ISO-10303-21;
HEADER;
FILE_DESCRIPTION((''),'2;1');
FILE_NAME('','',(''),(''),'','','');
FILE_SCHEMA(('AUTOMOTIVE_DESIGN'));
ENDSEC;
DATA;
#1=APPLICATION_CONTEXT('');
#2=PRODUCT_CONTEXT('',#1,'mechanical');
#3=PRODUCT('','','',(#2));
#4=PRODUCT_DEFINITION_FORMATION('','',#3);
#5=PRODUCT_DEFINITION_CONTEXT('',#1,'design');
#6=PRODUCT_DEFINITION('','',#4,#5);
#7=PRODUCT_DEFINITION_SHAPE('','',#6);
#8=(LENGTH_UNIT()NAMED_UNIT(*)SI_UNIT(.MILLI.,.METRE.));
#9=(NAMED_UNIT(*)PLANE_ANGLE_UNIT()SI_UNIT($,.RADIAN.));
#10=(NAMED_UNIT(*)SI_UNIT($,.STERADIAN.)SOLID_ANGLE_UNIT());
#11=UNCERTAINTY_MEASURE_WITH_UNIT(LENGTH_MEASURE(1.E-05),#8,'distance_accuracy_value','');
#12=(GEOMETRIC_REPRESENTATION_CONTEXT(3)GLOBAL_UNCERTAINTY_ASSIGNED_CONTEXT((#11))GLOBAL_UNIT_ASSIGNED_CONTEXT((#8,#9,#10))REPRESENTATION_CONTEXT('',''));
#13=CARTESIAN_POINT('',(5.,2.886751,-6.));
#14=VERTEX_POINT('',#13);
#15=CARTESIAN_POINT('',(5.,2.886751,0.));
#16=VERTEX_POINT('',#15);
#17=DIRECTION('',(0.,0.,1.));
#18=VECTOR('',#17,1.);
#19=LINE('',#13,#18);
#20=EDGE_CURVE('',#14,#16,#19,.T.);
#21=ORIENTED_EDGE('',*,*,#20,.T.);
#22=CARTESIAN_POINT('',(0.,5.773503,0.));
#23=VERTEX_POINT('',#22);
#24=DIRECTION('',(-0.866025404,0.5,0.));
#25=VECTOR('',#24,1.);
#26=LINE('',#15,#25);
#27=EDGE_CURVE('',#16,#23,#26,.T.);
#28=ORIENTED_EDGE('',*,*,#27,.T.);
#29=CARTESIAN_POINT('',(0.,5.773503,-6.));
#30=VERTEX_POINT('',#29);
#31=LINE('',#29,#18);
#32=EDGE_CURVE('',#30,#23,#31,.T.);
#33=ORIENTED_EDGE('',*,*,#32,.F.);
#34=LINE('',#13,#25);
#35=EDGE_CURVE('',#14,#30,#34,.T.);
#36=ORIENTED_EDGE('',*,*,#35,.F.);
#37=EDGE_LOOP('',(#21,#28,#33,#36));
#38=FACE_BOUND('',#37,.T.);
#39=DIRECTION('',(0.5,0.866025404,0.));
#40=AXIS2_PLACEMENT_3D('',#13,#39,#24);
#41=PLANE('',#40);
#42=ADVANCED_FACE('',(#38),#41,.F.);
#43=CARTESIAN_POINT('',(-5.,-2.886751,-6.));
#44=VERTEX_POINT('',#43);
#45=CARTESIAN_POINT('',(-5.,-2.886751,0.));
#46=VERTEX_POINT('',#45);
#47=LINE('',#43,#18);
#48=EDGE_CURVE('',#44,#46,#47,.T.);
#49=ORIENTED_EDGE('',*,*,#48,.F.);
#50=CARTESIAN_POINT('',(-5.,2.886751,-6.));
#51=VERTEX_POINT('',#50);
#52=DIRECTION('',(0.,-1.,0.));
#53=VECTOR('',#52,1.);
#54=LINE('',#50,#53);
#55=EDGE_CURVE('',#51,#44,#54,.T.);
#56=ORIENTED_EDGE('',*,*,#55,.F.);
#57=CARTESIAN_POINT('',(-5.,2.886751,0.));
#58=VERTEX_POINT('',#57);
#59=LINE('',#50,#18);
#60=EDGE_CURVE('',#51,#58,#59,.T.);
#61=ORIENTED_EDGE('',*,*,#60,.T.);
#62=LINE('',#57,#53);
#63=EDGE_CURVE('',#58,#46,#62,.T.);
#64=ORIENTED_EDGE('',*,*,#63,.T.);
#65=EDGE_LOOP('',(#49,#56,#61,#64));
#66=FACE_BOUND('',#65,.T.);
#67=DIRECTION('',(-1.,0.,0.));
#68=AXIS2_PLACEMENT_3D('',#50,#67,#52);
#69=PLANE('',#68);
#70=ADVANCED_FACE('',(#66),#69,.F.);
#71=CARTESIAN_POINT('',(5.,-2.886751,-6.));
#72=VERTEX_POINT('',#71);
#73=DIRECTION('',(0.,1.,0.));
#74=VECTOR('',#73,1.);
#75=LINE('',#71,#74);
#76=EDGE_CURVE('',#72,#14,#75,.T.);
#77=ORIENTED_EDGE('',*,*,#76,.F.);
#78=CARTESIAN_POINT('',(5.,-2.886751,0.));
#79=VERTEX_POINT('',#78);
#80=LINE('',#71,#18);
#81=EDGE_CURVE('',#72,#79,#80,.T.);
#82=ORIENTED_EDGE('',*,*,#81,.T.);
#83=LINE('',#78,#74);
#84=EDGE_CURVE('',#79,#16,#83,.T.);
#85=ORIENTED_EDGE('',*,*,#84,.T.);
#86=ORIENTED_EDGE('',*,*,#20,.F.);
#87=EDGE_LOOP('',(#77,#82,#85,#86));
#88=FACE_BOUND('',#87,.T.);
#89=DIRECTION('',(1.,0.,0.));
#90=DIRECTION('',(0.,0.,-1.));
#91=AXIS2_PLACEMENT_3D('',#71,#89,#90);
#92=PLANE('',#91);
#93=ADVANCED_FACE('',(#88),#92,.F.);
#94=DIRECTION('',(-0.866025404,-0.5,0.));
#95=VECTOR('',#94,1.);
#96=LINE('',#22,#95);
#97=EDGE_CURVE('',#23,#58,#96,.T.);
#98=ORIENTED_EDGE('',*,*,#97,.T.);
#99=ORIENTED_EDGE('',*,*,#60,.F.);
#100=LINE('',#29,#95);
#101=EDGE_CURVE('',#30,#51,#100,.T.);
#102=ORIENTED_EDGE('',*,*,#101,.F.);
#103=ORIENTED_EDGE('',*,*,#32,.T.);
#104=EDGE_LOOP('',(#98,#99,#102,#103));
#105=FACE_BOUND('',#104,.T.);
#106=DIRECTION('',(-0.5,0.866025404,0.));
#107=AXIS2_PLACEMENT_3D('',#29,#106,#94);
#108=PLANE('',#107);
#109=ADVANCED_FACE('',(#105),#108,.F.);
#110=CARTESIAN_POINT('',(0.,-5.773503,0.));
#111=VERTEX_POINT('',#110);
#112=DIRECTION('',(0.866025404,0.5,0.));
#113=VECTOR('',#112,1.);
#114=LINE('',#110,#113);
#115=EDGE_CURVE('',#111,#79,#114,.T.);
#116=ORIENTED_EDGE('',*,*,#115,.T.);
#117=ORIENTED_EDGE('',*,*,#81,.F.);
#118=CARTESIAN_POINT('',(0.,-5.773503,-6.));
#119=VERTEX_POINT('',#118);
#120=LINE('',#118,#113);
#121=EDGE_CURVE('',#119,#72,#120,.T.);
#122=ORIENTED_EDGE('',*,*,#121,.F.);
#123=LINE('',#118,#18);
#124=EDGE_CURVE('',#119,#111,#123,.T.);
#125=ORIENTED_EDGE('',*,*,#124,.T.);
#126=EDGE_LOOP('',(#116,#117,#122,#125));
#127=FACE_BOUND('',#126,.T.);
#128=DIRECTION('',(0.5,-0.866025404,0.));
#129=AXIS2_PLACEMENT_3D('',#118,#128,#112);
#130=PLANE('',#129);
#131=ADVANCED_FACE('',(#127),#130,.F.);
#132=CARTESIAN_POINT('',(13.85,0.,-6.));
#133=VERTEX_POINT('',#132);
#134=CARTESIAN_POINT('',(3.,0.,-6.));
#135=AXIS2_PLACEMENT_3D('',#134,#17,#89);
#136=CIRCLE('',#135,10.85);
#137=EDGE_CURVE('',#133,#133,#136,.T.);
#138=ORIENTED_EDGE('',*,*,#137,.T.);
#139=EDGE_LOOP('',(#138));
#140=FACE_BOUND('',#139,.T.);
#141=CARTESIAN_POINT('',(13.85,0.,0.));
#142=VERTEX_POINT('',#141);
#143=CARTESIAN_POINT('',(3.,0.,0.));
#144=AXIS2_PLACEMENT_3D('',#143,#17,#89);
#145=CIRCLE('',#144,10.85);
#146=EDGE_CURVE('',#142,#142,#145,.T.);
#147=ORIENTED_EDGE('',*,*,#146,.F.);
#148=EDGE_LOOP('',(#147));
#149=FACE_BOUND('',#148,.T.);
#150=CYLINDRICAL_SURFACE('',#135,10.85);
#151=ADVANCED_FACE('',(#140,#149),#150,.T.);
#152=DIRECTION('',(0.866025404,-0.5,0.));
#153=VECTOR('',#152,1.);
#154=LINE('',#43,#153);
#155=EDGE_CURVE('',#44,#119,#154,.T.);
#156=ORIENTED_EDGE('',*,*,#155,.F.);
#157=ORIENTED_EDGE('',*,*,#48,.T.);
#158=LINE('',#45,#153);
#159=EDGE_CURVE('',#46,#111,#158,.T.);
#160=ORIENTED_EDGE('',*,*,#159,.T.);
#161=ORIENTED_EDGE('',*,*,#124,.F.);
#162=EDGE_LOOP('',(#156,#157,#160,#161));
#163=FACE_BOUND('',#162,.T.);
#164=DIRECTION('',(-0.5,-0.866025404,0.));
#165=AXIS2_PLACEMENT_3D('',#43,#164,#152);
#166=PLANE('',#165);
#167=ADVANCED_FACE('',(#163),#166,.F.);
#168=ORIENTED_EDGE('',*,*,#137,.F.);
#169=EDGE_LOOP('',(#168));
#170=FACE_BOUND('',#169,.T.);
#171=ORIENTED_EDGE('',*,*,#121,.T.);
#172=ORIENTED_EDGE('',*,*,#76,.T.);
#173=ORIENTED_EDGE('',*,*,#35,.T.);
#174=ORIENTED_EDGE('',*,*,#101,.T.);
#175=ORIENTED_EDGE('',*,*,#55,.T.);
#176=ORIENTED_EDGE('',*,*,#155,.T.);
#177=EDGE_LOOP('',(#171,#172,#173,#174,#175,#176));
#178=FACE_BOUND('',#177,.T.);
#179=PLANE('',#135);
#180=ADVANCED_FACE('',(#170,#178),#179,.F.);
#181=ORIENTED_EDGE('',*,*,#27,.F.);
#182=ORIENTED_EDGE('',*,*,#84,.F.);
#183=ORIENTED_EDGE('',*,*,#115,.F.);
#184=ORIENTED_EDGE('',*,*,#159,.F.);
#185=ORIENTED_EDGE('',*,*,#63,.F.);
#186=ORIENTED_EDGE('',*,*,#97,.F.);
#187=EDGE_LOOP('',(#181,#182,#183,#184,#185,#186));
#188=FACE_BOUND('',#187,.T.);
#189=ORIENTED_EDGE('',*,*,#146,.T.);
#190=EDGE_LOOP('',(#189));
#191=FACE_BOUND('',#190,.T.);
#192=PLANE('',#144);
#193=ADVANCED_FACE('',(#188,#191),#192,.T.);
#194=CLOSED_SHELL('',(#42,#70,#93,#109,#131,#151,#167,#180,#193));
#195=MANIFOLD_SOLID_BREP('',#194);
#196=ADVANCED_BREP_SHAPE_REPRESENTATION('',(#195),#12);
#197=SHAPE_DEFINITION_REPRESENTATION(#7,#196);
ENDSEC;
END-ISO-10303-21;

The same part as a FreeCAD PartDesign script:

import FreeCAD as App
import Part
import Sketcher
from FreeCAD import Vector
Q = App.Units.Quantity


def add_polygon(sketch, points):
    """Adds a closed chain of lines whose ends are joined by coincident constraints."""
    first, n = sketch.GeometryCount, len(points)
    for a, b in zip(points, points[1:] + points[:1]):
        sketch.addGeometry(Part.LineSegment(App.Vector(*a, 0), App.Vector(*b, 0)), False)
    for i in range(n):
        sketch.addConstraint(Sketcher.Constraint("Coincident", first + i, 2, first + (i + 1) % n, 1))

doc = App.newDocument("Part")
body = doc.addObject("PartDesign::Body", "Body")

# Sketch on XY plane
sketch1 = doc.addObject("Sketcher::SketchObject", "Sketch")
body.addObject(sketch1)
sketch1.AttachmentSupport = (doc.XY_Plane, [""])
sketch1.MapMode = "FlatFace"
sketch1.addGeometry(Part.Circle(Vector(3, 0, 0), Vector(0, 0, 1), 11), False)  # 0
add_polygon(sketch1, [(-5, 3), (0, 6), (5, 3), (5, -3), (0, -6), (-5, -3)])  # lines 1-6
sketch1.addConstraint([
    Sketcher.Constraint("Vertical", 3),
    Sketcher.Constraint("Vertical", 6),
    Sketcher.Constraint("Symmetric", 1, 2, 4, 2, -1, 1),
    Sketcher.Constraint("Symmetric", 2, 2, 5, 2, -1, 1),
    Sketcher.Constraint("PointOnObject", 0, 3, -1),
    Sketcher.Constraint("PointOnObject", 1, 2, -2),
    Sketcher.Constraint("Parallel", 1, 4),
    Sketcher.Constraint("Horizontal", 3, 2, 5, 2),
    Sketcher.Constraint("Diameter", 0, Q("21.7 mm")),
    Sketcher.Constraint("Angle", 1, Q("30 deg")),
    Sketcher.Constraint("DistanceX", -1, 1, 0, 3, Q("3 mm")),
    Sketcher.Constraint("DistanceX", -1, 1, 2, 2, Q("5 mm")),
    Sketcher.Constraint("DistanceY", 3, 2, 3, 1, Q("5.773503 mm")),
])
pad1 = doc.addObject("PartDesign::Pad", "Pad")
body.addObject(pad1)
pad1.Profile = sketch1
pad1.Length = 6
pad1.Reversed = True

doc.recompute()
